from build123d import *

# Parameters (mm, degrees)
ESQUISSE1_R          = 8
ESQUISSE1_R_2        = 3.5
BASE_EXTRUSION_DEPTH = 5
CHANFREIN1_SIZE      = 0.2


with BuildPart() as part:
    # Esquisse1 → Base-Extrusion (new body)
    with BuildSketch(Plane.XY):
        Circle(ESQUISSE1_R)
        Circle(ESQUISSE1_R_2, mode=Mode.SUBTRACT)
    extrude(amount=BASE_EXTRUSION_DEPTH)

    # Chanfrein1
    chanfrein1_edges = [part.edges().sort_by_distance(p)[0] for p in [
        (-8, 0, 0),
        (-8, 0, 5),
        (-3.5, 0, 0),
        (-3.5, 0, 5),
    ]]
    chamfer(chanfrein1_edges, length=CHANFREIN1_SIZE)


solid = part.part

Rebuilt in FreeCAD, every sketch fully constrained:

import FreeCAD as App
import Part
import Sketcher
from FreeCAD import Vector


def edges_at(feature, points):
    """Names of the edges that pass closest to the given points."""
    edges = feature.Shape.Edges
    near = lambda p: min(range(len(edges)), key=lambda i: edges[i].distToShape(Part.Vertex(*p))[0])
    return sorted({f"Edge{near(p) + 1}" for p in points})

doc = App.newDocument("Part")
body = doc.addObject("PartDesign::Body", "Body")

# Sketch on XY plane
sketch1 = body.newObject("Sketcher::SketchObject", "Sketch")
sketch1.AttachmentSupport = (doc.getObject("XY_Plane"), [""])
sketch1.MapMode = "FlatFace"
sketch1.addGeometry([
    Part.Circle(Vector(0, 0, 0), Vector(0, 0, 1), 8),
    Part.Circle(Vector(0, 0, 0), Vector(0, 0, 1), 3.5),
], False)
sketch1.addConstraint([
    Sketcher.Constraint("Coincident", 0, 3, -1, 1),
    Sketcher.Constraint("Coincident", 1, 3, -1, 1),
    Sketcher.Constraint("Diameter", 0, 16.0),
    Sketcher.Constraint("Diameter", 1, 7.0),
])
pad1 = body.newObject("PartDesign::Pad", "Pad")
pad1.Profile = sketch1
pad1.Length = 5
doc.recompute()

chamfer = body.newObject("PartDesign::Chamfer", "Chamfer")
chamfer.Base = (pad1, edges_at(pad1, [
    (-8, 0, 0),
    (-8, 0, 5),
    (-3.5, 0, 0),
    (-3.5, 0, 5),
]))
chamfer.Size = 0.2

doc.recompute()
